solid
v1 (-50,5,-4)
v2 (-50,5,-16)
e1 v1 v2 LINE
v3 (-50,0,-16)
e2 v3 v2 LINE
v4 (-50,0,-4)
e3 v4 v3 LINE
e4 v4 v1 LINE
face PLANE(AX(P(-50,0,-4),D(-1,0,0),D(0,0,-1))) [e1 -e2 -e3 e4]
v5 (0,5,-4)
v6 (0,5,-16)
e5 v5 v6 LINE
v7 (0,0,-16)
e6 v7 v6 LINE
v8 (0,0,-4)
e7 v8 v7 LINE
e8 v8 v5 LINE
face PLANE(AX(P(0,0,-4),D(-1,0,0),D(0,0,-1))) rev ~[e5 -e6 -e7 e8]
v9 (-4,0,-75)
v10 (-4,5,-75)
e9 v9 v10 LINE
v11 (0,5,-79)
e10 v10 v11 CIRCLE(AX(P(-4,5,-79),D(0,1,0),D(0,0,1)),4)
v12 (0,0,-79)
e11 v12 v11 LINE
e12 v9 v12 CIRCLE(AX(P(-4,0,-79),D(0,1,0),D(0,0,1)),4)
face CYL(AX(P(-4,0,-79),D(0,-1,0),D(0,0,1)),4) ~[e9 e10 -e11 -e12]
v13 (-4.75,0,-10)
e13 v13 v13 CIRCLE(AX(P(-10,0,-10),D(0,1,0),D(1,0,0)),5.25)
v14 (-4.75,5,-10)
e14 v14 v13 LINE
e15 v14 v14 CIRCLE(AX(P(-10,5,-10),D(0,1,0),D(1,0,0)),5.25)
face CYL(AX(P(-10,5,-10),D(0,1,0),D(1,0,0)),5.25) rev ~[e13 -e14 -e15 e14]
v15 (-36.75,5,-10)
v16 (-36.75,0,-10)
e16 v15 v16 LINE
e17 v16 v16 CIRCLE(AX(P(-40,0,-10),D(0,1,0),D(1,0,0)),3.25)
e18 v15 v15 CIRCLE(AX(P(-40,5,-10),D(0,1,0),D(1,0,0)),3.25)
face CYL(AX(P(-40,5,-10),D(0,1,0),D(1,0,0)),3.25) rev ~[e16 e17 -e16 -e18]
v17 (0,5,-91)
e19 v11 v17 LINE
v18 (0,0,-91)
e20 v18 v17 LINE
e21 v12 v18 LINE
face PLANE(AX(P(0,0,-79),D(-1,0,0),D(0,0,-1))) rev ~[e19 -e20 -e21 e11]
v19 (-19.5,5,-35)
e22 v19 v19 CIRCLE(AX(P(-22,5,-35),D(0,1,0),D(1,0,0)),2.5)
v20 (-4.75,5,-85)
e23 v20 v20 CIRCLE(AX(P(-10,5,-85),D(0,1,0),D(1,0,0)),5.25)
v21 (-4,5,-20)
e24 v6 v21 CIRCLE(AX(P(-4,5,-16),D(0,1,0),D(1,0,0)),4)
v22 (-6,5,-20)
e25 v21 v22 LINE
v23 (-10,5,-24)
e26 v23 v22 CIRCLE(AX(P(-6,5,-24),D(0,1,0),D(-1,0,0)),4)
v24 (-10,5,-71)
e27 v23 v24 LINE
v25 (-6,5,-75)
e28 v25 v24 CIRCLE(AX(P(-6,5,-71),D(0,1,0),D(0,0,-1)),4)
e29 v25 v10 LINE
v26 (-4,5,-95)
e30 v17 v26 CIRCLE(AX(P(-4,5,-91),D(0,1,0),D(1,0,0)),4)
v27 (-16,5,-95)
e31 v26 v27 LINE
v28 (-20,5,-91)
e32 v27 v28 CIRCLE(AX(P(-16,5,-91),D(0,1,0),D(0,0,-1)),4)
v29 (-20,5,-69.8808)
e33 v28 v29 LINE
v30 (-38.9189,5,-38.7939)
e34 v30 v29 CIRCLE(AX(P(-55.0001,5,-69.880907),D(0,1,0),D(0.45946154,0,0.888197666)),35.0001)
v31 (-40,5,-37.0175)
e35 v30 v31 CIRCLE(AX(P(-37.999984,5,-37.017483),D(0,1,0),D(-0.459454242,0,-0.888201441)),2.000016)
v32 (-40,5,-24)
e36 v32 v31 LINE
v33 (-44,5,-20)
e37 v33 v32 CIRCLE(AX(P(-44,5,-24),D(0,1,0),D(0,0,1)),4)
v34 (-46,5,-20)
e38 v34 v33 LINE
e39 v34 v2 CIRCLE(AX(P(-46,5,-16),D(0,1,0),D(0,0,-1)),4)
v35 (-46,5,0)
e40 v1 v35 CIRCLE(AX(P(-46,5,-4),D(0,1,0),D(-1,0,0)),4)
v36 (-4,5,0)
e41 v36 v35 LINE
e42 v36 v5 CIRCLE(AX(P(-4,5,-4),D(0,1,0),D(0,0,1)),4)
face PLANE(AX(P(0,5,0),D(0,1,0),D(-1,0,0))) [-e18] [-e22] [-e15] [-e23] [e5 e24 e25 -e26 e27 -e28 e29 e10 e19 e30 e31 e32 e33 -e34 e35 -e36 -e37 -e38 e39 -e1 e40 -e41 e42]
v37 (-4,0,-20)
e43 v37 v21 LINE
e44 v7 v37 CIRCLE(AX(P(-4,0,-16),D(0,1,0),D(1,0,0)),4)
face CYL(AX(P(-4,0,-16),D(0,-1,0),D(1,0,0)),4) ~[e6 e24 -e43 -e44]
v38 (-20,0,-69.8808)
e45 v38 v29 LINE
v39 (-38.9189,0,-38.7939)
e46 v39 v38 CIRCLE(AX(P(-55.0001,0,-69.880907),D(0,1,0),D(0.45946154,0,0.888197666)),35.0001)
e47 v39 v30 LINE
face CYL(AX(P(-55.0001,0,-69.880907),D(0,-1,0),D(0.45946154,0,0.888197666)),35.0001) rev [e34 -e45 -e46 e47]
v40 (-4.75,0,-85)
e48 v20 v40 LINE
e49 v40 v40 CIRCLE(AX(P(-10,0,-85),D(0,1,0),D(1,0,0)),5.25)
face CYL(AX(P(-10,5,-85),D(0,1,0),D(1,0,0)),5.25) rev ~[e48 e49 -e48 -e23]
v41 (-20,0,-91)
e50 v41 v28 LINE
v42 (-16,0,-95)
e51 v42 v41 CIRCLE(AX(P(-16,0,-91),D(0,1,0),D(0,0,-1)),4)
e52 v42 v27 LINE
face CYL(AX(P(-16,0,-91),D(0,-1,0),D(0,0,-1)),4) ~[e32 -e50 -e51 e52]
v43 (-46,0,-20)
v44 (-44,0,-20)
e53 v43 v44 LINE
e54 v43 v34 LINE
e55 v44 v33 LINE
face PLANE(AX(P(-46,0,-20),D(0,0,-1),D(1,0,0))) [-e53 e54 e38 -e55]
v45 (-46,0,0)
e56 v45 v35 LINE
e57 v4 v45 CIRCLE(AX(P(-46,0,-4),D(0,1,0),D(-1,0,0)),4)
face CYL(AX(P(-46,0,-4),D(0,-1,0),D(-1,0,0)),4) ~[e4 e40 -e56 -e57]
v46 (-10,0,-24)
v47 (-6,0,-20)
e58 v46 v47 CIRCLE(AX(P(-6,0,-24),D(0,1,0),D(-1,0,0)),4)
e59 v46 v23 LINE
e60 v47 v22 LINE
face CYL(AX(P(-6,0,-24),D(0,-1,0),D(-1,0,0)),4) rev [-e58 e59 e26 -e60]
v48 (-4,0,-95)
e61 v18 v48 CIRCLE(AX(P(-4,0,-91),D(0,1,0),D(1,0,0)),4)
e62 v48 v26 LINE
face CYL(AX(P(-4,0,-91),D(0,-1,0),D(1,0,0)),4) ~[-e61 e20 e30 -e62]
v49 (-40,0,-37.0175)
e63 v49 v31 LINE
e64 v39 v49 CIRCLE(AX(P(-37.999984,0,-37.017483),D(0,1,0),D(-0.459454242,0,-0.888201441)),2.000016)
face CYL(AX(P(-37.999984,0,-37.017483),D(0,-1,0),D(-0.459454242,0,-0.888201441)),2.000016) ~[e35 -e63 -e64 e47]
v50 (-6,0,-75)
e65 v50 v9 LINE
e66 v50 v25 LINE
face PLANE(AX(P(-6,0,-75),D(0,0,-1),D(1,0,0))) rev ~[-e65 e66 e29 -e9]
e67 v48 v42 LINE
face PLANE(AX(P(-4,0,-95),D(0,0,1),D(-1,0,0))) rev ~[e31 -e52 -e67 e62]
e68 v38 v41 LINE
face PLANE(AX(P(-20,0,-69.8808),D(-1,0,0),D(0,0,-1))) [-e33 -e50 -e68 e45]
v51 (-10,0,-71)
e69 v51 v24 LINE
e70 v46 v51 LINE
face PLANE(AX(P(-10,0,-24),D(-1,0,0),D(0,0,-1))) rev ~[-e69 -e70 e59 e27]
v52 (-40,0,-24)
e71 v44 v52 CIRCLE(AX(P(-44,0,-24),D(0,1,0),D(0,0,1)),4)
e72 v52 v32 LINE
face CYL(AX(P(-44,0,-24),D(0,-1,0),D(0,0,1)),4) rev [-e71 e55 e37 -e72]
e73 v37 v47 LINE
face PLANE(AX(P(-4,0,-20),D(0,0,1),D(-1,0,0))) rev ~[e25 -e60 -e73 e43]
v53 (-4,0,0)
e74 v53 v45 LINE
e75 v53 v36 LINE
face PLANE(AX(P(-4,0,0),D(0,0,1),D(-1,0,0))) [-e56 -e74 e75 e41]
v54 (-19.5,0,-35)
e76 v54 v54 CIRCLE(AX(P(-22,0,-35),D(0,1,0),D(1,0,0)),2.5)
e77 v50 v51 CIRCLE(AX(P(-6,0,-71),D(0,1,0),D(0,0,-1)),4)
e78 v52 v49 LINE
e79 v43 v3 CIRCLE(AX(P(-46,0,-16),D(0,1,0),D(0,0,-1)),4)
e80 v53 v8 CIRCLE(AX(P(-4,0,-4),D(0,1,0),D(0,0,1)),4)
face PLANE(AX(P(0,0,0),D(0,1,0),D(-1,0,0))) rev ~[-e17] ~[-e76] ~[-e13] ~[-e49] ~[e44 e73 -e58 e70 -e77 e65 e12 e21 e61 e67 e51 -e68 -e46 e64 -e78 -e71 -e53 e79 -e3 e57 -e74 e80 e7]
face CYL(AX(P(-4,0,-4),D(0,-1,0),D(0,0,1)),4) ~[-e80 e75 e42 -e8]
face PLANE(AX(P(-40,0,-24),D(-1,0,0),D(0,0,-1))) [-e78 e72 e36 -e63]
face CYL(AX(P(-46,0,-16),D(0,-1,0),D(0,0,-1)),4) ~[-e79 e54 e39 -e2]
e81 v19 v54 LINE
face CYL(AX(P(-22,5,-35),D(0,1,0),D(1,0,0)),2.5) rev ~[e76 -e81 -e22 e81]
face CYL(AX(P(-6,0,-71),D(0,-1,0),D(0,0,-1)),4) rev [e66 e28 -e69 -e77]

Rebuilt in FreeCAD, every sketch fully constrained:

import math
import FreeCAD as App
import Part
import Sketcher

doc = App.newDocument("Part")
body = doc.addObject("PartDesign::Body", "Body")

sketch1 = doc.addObject("Sketcher::SketchObject", "Sketch")
body.addObject(sketch1)
sketch1.AttachmentSupport = (doc.XZ_Plane, [""])
sketch1.MapMode = "FlatFace"
sketch1.addGeometry([
    Part.LineSegment(App.Vector(-46, 0, 0), App.Vector(-4, 0, 0)),
    Part.ArcOfCircle(Part.Circle(App.Vector(-4, -4, 0), App.Vector(0, 0, 1), 4), math.radians(0), math.radians(90)),
    Part.LineSegment(App.Vector(0, -4, 0), App.Vector(0, -16, 0)),
    Part.ArcOfCircle(Part.Circle(App.Vector(-4, -16, 0), App.Vector(0, 0, 1), 4), math.radians(-90), math.radians(0)),
    Part.LineSegment(App.Vector(-4, -20, 0), App.Vector(-6, -20, 0)),
    Part.ArcOfCircle(Part.Circle(App.Vector(-6, -24, 0), App.Vector(0, 0, 1), 4), math.radians(90), math.radians(180)),
    Part.LineSegment(App.Vector(-10, -24, 0), App.Vector(-10, -71, 0)),
    Part.ArcOfCircle(Part.Circle(App.Vector(-6, -71, 0), App.Vector(0, 0, 1), 4), math.radians(180), math.radians(270)),
    Part.LineSegment(App.Vector(-6, -75, 0), App.Vector(-4, -75, 0)),
    Part.ArcOfCircle(Part.Circle(App.Vector(-4, -79, 0), App.Vector(0, 0, 1), 4), math.radians(0), math.radians(90)),
    Part.LineSegment(App.Vector(0, -79, 0), App.Vector(0, -91, 0)),
    Part.ArcOfCircle(Part.Circle(App.Vector(-4, -91, 0), App.Vector(0, 0, 1), 4), math.radians(-90), math.radians(0)),
    Part.LineSegment(App.Vector(-4, -95, 0), App.Vector(-16, -95, 0)),
    Part.ArcOfCircle(Part.Circle(App.Vector(-16, -91, 0), App.Vector(0, 0, 1), 4), math.radians(180), math.radians(270)),
    Part.LineSegment(App.Vector(-20, -91, 0), App.Vector(-20, -69.9, 0)),
    Part.ArcOfCircle(Part.Circle(App.Vector(-55, -69.9, 0), App.Vector(0, 0, 1), 35), math.radians(0), math.radians(63)),
    Part.ArcOfCircle(Part.Circle(App.Vector(-38, -37, 0), App.Vector(0, 0, 1), 2), math.radians(180), math.radians(243)),
    Part.LineSegment(App.Vector(-40, -37, 0), App.Vector(-40, -24, 0)),
    Part.ArcOfCircle(Part.Circle(App.Vector(-44, -24, 0), App.Vector(0, 0, 1), 4), math.radians(0), math.radians(90)),
    Part.LineSegment(App.Vector(-44, -20, 0), App.Vector(-46, -20, 0)),
    Part.ArcOfCircle(Part.Circle(App.Vector(-46, -16, 0), App.Vector(0, 0, 1), 4), math.radians(180), math.radians(270)),
    Part.LineSegment(App.Vector(-50, -16, 0), App.Vector(-50, -4, 0)),
    Part.ArcOfCircle(Part.Circle(App.Vector(-46, -4, 0), App.Vector(0, 0, 1), 4), math.radians(90), math.radians(180)),
], False)
sketch1.addConstraint([
    Sketcher.Constraint("Tangent", 0, 2, 1, 2),
    Sketcher.Constraint("Tangent", 1, 1, 2, 1),
    Sketcher.Constraint("Tangent", 2, 2, 3, 2),
    Sketcher.Constraint("Tangent", 3, 1, 4, 1),
    Sketcher.Constraint("Tangent", 4, 2, 5, 1),
    Sketcher.Constraint("Tangent", 5, 2, 6, 1),
    Sketcher.Constraint("Tangent", 6, 2, 7, 1),
    Sketcher.Constraint("Tangent", 7, 2, 8, 1),
    Sketcher.Constraint("Tangent", 8, 2, 9, 2),
    Sketcher.Constraint("Tangent", 9, 1, 10, 1),
    Sketcher.Constraint("Tangent", 10, 2, 11, 2),
    Sketcher.Constraint("Tangent", 11, 1, 12, 1),
    Sketcher.Constraint("Tangent", 12, 2, 13, 2),
    Sketcher.Constraint("Tangent", 13, 1, 14, 1),
    Sketcher.Constraint("Tangent", 14, 2, 15, 1),
    Sketcher.Constraint("Tangent", 15, 2, 16, 2),
    Sketcher.Constraint("Tangent", 16, 1, 17, 1),
    Sketcher.Constraint("Tangent", 17, 2, 18, 1),
    Sketcher.Constraint("Tangent", 18, 2, 19, 1),
    Sketcher.Constraint("Tangent", 19, 2, 20, 2),
    Sketcher.Constraint("Tangent", 20, 1, 21, 1),
    Sketcher.Constraint("Tangent", 21, 2, 22, 2),
    Sketcher.Constraint("Tangent", 22, 1, 0, 1),
    Sketcher.Constraint("Horizontal", 0),
    Sketcher.Constraint("Vertical", 2),
    Sketcher.Constraint("Horizontal", 4),
    Sketcher.Constraint("Vertical", 6),
    Sketcher.Constraint("Horizontal", 8),
    Sketcher.Constraint("Vertical", 10),
    Sketcher.Constraint("Horizontal", 12),
    Sketcher.Constraint("Vertical", 14),
    Sketcher.Constraint("Vertical", 17),
    Sketcher.Constraint("Horizontal", 19),
    Sketcher.Constraint("Vertical", 21),
    Sketcher.Constraint("Equal", 1, 3),
    Sketcher.Constraint("Equal", 3, 5),
    Sketcher.Constraint("Equal", 5, 7),
    Sketcher.Constraint("Equal", 7, 9),
    Sketcher.Constraint("Equal", 9, 11),
    Sketcher.Constraint("Equal", 11, 13),
    Sketcher.Constraint("Equal", 13, 18),
    Sketcher.Constraint("Equal", 18, 20),
    Sketcher.Constraint("Equal", 20, 22),
    Sketcher.Constraint("PointOnObject", 0, 2, -1),
    Sketcher.Constraint("PointOnObject", 1, 1, -2),
    Sketcher.Constraint("PointOnObject", 9, 1, -2),
    Sketcher.Constraint("Horizontal", 5, 3, 18, 3),
    Sketcher.Constraint("Equal", 8, 19),
    Sketcher.Constraint("Equal", 12, 2),
    Sketcher.Constraint("Equal", 2, 10),
    Sketcher.Constraint("Radius", 1, 4.0),
    Sketcher.Constraint("Radius", 15, 35.0),
    Sketcher.Constraint("Radius", 16, 2.0),
    Sketcher.Constraint("DistanceX", 4, 2, 4, 1, 2.0),
    Sketcher.Constraint("DistanceX", 15, 3, -1, 1, 55.0),
    Sketcher.Constraint("DistanceY", 11, 1, -1, 1, 95.0),
    Sketcher.Constraint("DistanceX", 20, 1, -1, 1, 50.0),
    Sketcher.Constraint("DistanceY", 14, 1, 14, 2, 21.1192),
])
pad1 = doc.addObject("PartDesign::Pad", "Pad")
body.addObject(pad1)
pad1.Profile = sketch1
pad1.Length = 5
pad1.Reversed = True

sketch2 = doc.addObject("Sketcher::SketchObject", "Sketch001")
body.addObject(sketch2)
sketch2.AttachmentSupport = (doc.XZ_Plane, [""])
sketch2.MapMode = "FlatFace"
sketch2.AttachmentOffset = App.Placement(App.Vector(0, 0, -5), App.Rotation())
sketch2.addGeometry([
    Part.Circle(App.Vector(-40, -10, 0), App.Vector(0, 0, 1), 3.2),
    Part.Circle(App.Vector(-22, -35, 0), App.Vector(0, 0, 1), 2.5),
    Part.Circle(App.Vector(-10, -10, 0), App.Vector(0, 0, 1), 5.2),
    Part.Circle(App.Vector(-10, -85, 0), App.Vector(0, 0, 1), 5.2),
], False)
sketch2.addConstraint([
    Sketcher.Constraint("Equal", 2, 3),
    Sketcher.Constraint("Horizontal", 0, 3, 2, 3),
    Sketcher.Constraint("Vertical", 2, 3, 3, 3),
    Sketcher.Constraint("Diameter", 1, 5.0),
    Sketcher.Constraint("Diameter", 0, 6.5),
    Sketcher.Constraint("Diameter", 2, 10.5),
    Sketcher.Constraint("DistanceY", 0, 3, -1, 1, 10.0),
    Sketcher.Constraint("DistanceY", 1, 3, -1, 1, 35.0),
    Sketcher.Constraint("DistanceX", 2, 3, -1, 1, 10.0),
    Sketcher.Constraint("DistanceX", 1, 3, 2, 3, 12.0),
    Sketcher.Constraint("DistanceX", 0, 3, -1, 1, 40.0),
    Sketcher.Constraint("DistanceY", 3, 3, -1, 1, 85.0),
])
pocket1 = doc.addObject("PartDesign::Pocket", "Pocket")
body.addObject(pocket1)
pocket1.Profile = sketch2
pocket1.Type = "ThroughAll"
pocket1.Reversed = True

doc.recompute()
